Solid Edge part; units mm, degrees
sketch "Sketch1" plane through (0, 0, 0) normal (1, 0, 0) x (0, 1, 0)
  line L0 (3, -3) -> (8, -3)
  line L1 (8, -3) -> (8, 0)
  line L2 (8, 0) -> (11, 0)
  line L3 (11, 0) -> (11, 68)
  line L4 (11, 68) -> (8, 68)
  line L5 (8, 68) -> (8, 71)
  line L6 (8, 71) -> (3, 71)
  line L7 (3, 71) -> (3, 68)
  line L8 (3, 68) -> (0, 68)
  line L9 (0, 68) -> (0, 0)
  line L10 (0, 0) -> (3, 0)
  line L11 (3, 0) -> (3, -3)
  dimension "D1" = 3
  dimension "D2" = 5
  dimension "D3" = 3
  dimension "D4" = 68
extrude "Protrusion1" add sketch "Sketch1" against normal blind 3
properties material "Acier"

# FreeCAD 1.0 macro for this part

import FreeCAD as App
import Part
import Sketcher
Q = App.Units.Quantity


def add_polygon(sketch, points):
    """Adds a closed chain of lines whose ends are joined by coincident constraints."""
    first, n = sketch.GeometryCount, len(points)
    for a, b in zip(points, points[1:] + points[:1]):
        sketch.addGeometry(Part.LineSegment(App.Vector(*a, 0), App.Vector(*b, 0)), False)
    for i in range(n):
        sketch.addConstraint(Sketcher.Constraint("Coincident", first + i, 2, first + (i + 1) % n, 1))

doc = App.newDocument("Part")
body = doc.addObject("PartDesign::Body", "Body")

# Sketch on YZ plane
sketch1 = doc.addObject("Sketcher::SketchObject", "Sketch")
body.addObject(sketch1)
sketch1.AttachmentSupport = (doc.YZ_Plane, [""])
sketch1.MapMode = "FlatFace"
add_polygon(sketch1, [(3, 0), (3, -3), (8, -3), (8, 0), (11, 0), (11, 68), (8, 68), (8, 71), (3, 71), (3, 68), (0, 68), (0, 0)])  # lines 0-11
sketch1.addConstraint([
    Sketcher.Constraint("Vertical", 0),
    Sketcher.Constraint("Horizontal", 1),
    Sketcher.Constraint("Vertical", 2),
    Sketcher.Constraint("Horizontal", 3),
    Sketcher.Constraint("Vertical", 4),
    Sketcher.Constraint("Horizontal", 5),
    Sketcher.Constraint("Vertical", 6),
    Sketcher.Constraint("Horizontal", 7),
    Sketcher.Constraint("Vertical", 8),
    Sketcher.Constraint("Horizontal", 9),
    Sketcher.Constraint("Vertical", 10),
    Sketcher.Constraint("Horizontal", 11),
    Sketcher.Constraint("Coincident", 10, 2, -1, 1),
    Sketcher.Constraint("PointOnObject", 2, 2, -1),
    Sketcher.Constraint("Horizontal", 5, 2, 8, 2),
    Sketcher.Constraint("Vertical", 2, 2, 5, 2),
    Sketcher.Constraint("Vertical", 0, 2, 7, 2),
    Sketcher.Constraint("Equal", 5, 9),
    Sketcher.Constraint("Equal", 11, 0),
    Sketcher.Constraint("Equal", 2, 6),
    Sketcher.Constraint("DistanceX", -1, 1, 1, 2, Q("8 mm")),
    Sketcher.Constraint("DistanceX", -1, 1, 3, 2, Q("11 mm")),
    Sketcher.Constraint("DistanceY", 4, 1, 4, 2, Q("68 mm")),
])
pad1 = doc.addObject("PartDesign::Pad", "Pad")
body.addObject(pad1)
pad1.Profile = sketch1
pad1.Length = 3
pad1.Reversed = True

doc.recompute()
